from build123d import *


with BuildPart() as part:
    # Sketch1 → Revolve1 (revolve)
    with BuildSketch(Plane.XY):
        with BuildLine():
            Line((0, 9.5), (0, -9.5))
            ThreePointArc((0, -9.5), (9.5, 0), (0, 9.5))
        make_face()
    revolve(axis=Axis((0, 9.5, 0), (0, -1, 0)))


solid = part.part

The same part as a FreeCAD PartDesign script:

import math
import FreeCAD as App
import Part
import Sketcher

doc = App.newDocument("Part")
params = doc.addObject("Spreadsheet::Sheet", "Params")
for row, (alias, value) in enumerate([
    ("sketch1_radius", "9.5 mm"),
    ("revolution_angle", "360 deg"),
], start=1):
    params.set(f"A{row}", alias)
    params.set(f"B{row}", "=" + value)
    params.setAlias(f"B{row}", alias)

body = doc.addObject("PartDesign::Body", "Body")

sketch1 = doc.addObject("Sketcher::SketchObject", "Sketch")
body.addObject(sketch1)
sketch1.AttachmentSupport = (doc.XY_Plane, [""])
sketch1.MapMode = "FlatFace"
sketch1.addGeometry(Part.LineSegment(App.Vector(0, 10, 0), App.Vector(0, -10, 0)), False)
sketch1.addGeometry(Part.ArcOfCircle(Part.Circle(App.Vector(0, 0, 0), App.Vector(0, 0, 1), 10), math.radians(-90), math.radians(90)), False)
sketch1.addConstraint(Sketcher.Constraint("Coincident", 0, 1, 1, 2))
sketch1.addConstraint(Sketcher.Constraint("Coincident", 1, 1, 0, 2))
sketch1.addConstraint(Sketcher.Constraint("Vertical", 0))
sketch1.addConstraint(Sketcher.Constraint("Coincident", 1, 3, -1, 1))
sketch1.addConstraint(Sketcher.Constraint("PointOnObject", 0, 1, -2))
sketch1.addConstraint(Sketcher.Constraint("Radius", 1, 9.5))
sketch1.setExpression("Constraints[5]", "Params.sketch1_radius")
revolution = doc.addObject("PartDesign::Revolution", "Revolution")
body.addObject(revolution)
revolution.Profile = sketch1
revolution.ReferenceAxis = (sketch1, ["V_Axis"])
revolution.setExpression("Angle", "Params.revolution_angle")

doc.recompute()
